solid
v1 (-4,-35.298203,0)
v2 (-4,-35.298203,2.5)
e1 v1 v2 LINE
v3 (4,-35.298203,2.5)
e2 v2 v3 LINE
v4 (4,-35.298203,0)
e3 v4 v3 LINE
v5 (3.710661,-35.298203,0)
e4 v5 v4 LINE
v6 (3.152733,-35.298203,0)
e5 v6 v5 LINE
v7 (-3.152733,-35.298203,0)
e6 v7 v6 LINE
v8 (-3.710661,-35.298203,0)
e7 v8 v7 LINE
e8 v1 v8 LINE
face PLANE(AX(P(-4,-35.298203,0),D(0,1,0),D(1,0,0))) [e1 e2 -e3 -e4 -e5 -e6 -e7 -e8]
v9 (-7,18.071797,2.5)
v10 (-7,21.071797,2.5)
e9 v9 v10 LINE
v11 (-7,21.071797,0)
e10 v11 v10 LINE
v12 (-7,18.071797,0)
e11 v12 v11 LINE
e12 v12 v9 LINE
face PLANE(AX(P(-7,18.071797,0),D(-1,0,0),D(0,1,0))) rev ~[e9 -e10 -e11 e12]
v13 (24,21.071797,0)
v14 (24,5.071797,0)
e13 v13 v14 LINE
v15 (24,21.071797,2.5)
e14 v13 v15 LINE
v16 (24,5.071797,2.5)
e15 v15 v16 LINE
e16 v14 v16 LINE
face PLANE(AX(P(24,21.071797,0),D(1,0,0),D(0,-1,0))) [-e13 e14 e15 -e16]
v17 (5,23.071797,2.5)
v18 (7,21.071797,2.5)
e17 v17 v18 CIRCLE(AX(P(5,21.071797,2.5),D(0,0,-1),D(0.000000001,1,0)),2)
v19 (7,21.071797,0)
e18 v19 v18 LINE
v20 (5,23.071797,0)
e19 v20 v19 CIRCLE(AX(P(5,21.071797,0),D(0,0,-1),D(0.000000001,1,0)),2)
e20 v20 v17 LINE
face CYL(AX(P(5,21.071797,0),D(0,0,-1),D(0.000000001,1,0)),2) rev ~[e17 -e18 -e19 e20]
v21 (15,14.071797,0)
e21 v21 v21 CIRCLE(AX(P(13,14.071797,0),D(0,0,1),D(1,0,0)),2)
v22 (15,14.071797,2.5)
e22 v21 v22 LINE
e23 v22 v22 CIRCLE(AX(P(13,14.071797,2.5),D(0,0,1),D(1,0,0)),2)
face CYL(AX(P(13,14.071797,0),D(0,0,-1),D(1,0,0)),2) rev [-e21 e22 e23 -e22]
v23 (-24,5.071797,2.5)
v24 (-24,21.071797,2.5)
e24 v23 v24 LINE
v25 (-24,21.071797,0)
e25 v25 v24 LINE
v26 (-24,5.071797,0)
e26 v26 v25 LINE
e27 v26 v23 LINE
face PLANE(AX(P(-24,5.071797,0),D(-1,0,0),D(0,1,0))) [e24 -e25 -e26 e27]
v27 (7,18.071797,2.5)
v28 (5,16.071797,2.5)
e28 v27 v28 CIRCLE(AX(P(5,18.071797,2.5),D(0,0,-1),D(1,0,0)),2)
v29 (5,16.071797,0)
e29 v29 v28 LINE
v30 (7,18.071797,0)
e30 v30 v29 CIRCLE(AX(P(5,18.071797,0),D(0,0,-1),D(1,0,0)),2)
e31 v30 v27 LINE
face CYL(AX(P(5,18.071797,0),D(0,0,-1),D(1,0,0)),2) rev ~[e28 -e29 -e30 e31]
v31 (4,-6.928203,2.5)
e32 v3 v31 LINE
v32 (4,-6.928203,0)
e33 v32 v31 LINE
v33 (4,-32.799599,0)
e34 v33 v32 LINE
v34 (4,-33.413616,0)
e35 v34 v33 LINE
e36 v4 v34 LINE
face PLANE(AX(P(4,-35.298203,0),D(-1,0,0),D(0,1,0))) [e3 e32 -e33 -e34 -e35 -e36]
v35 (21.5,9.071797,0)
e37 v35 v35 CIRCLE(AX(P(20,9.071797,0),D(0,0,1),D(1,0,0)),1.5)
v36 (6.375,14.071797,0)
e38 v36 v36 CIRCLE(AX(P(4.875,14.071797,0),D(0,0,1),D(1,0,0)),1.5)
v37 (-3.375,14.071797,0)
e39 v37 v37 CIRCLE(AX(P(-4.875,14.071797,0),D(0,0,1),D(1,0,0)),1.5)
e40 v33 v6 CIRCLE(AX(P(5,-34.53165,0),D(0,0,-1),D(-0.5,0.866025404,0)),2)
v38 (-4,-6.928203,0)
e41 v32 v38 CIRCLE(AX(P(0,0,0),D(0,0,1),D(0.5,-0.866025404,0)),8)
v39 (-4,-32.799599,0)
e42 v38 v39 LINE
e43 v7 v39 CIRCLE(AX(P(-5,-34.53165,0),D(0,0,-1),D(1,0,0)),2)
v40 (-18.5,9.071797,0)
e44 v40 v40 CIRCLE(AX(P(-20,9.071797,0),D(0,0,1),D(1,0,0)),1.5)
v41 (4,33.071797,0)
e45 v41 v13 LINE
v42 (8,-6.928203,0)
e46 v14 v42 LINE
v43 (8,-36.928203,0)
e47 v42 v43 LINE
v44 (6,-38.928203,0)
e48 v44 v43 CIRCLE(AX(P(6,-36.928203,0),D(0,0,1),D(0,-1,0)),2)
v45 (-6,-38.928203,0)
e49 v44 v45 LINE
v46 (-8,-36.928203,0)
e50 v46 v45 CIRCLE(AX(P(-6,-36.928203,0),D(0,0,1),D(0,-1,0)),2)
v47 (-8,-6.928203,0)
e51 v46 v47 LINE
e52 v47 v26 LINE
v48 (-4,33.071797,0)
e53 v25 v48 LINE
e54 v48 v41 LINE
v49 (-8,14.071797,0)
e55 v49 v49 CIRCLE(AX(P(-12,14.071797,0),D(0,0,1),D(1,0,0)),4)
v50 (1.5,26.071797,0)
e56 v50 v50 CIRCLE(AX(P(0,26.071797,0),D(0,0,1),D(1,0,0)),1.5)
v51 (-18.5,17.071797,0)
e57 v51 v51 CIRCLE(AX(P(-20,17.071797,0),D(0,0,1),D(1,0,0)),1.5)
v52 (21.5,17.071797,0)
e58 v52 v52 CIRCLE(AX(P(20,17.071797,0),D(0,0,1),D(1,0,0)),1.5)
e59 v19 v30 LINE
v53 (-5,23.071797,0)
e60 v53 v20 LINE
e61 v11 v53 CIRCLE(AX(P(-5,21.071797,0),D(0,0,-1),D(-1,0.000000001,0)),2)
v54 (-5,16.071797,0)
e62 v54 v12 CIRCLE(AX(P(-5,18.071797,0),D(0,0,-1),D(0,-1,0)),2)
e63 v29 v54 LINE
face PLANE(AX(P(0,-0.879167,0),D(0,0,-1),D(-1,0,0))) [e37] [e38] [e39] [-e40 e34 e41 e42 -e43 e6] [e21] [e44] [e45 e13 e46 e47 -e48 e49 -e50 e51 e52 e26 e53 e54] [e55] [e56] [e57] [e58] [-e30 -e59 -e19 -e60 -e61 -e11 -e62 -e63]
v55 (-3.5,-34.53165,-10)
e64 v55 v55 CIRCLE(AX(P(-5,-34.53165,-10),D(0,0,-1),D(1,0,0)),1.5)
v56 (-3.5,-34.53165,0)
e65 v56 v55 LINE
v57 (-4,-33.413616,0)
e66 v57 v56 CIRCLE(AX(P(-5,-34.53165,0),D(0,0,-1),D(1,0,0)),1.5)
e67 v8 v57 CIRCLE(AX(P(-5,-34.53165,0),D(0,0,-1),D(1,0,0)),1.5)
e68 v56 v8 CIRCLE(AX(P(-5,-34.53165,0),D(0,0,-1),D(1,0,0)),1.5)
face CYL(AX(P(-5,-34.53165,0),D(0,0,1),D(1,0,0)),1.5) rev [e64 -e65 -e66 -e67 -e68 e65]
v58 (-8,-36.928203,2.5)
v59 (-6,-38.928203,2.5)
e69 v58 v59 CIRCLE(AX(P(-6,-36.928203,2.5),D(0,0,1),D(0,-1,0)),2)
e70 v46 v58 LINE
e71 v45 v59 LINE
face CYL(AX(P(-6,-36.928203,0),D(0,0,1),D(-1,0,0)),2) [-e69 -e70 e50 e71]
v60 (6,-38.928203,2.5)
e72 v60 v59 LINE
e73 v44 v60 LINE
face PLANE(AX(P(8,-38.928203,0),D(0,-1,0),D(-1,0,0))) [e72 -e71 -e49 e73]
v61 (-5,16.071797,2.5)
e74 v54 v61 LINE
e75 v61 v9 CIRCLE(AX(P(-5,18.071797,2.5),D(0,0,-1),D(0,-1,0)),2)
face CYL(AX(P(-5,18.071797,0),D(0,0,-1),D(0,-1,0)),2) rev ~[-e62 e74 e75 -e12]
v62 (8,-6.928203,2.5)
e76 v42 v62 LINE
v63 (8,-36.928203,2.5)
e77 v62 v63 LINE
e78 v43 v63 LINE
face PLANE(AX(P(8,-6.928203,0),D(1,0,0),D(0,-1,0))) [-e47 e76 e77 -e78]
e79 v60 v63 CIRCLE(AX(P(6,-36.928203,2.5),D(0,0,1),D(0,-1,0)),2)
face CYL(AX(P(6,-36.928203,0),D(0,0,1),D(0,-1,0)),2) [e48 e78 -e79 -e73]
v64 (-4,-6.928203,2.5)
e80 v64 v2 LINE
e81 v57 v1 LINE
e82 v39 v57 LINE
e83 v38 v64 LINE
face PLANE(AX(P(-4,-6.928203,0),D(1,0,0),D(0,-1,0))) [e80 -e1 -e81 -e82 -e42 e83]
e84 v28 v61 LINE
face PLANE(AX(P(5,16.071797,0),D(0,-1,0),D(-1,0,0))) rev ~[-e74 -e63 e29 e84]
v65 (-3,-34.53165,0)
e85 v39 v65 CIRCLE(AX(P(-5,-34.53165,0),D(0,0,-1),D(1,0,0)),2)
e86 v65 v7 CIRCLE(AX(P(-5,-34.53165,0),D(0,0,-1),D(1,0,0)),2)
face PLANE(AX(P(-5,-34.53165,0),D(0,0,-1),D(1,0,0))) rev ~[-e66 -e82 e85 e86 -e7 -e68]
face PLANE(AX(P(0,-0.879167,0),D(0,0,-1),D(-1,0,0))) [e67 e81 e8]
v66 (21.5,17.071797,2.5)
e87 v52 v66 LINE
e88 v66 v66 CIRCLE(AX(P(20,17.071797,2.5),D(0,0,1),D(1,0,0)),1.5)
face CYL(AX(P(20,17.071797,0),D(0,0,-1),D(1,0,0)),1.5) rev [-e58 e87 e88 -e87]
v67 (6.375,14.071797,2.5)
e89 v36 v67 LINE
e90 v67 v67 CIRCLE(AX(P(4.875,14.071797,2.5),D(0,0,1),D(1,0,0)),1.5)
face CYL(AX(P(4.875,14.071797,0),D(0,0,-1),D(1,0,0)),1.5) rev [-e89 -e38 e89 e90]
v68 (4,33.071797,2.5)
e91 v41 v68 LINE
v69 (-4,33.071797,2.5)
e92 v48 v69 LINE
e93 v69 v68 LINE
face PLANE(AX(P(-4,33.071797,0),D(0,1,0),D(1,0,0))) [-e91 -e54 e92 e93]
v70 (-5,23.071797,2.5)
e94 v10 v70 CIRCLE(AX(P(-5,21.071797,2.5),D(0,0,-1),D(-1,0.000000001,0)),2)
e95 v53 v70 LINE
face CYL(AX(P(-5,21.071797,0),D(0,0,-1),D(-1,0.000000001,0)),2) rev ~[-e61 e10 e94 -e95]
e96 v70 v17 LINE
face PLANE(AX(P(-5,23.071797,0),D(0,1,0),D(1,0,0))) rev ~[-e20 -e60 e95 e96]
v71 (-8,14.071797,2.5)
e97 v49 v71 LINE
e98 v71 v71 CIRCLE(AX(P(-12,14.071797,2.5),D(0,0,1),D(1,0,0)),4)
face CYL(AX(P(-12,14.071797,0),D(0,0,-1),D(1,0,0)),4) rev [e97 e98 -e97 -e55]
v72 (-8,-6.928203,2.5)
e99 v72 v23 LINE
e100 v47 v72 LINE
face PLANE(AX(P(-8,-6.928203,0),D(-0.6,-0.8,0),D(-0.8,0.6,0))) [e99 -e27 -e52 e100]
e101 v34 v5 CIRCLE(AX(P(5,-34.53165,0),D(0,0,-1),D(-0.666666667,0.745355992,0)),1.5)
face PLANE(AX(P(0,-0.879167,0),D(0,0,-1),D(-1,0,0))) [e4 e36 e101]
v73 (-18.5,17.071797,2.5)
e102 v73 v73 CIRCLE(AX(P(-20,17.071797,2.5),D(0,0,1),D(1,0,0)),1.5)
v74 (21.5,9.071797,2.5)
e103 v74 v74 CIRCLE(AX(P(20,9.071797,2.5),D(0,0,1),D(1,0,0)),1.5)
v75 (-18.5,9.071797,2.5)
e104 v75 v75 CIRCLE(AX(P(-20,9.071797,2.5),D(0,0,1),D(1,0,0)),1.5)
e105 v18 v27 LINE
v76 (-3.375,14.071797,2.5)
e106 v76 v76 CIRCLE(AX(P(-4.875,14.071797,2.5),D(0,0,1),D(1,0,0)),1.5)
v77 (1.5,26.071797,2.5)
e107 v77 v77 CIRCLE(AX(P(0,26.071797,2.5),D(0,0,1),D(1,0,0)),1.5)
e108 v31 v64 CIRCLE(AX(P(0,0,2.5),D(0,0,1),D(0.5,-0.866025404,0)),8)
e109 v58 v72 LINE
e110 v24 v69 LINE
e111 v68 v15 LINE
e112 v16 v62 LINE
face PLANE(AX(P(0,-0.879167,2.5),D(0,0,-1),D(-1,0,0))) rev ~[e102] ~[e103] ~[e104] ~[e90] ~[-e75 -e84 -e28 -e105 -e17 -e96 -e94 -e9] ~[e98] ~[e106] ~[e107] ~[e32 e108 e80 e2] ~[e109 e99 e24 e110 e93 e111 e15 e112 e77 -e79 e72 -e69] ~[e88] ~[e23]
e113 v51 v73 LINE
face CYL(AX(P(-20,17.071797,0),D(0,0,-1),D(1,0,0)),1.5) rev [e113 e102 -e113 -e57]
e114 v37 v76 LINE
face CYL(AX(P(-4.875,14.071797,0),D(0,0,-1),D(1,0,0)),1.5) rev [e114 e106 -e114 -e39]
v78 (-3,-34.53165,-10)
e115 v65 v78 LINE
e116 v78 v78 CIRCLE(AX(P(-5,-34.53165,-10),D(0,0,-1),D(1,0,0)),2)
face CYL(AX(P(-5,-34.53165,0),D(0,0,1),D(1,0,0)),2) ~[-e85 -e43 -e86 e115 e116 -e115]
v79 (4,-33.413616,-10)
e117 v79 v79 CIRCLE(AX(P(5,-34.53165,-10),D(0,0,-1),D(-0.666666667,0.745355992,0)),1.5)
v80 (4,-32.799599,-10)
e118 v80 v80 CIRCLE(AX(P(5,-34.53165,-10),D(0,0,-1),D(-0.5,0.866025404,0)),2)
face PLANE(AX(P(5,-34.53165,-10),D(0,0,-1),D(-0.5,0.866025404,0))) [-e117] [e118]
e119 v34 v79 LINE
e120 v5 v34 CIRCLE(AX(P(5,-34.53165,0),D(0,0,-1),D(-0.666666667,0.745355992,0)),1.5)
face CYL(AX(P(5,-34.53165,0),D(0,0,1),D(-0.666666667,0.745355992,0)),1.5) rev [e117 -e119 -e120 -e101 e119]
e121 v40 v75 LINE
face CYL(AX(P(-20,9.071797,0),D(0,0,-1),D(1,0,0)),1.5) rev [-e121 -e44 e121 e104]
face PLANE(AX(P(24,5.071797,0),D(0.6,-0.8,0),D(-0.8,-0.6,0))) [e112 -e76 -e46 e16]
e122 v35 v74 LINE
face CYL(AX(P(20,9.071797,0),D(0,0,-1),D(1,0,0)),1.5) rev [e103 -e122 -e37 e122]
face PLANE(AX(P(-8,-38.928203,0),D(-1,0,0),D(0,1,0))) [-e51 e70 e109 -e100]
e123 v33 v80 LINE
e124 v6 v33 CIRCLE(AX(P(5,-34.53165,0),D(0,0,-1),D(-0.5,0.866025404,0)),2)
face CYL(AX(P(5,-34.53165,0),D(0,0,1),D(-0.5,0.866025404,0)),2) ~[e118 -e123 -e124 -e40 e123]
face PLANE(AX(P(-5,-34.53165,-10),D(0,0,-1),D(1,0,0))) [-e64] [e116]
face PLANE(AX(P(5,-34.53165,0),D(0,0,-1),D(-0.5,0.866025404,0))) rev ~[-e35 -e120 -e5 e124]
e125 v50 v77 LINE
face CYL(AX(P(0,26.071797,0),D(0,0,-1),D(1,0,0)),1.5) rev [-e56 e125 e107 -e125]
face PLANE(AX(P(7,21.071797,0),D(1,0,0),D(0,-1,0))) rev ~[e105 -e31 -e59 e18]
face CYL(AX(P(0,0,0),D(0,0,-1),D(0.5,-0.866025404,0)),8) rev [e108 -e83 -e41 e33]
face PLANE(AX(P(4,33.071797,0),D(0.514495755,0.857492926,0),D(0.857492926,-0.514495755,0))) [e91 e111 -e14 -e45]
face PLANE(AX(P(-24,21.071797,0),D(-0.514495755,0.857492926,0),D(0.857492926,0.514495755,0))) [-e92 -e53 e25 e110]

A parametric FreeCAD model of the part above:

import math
import FreeCAD as App
import Part
import Sketcher

V = App.Vector
Q = App.Units.Quantity


def edges_at(feature, points):
    """Names of the edges that pass closest to the given points."""
    edges = feature.Shape.Edges
    near = lambda p: min(range(len(edges)), key=lambda i: edges[i].distToShape(Part.Vertex(*p))[0])
    return sorted({f"Edge{near(p) + 1}" for p in points})

doc = App.newDocument("Part")
body = doc.addObject("PartDesign::Body", "Body")

sketch1 = body.newObject("Sketcher::SketchObject", "Sketch")
sketch1.AttachmentSupport = (doc.getObject("XY_Plane"), [""])
sketch1.MapMode = "FlatFace"
sketch1.addGeometry([
    Part.LineSegment(V(-24, 21.071797, 0), V(-24, 5.071797, 0)),
    Part.LineSegment(V(-24, 5.071797, 0), V(-8, -6.928203, 0)),
    Part.LineSegment(V(-8, -6.928203, 0), V(-8, -38.928203, 0)),
    Part.LineSegment(V(-8, -38.928203, 0), V(8, -38.928203, 0)),
    Part.LineSegment(V(8, -38.928203, 0), V(8, -6.928203, 0)),
    Part.LineSegment(V(8, -6.928203, 0), V(24, 5.071797, 0)),
    Part.LineSegment(V(24, 5.071797, 0), V(24, 21.071797, 0)),
    Part.LineSegment(V(24, 21.071797, 0), V(4, 33.071797, 0)),
    Part.LineSegment(V(4, 33.071797, 0), V(-4, 33.071797, 0)),
    Part.LineSegment(V(-4, 33.071797, 0), V(-24, 21.071797, 0)),
    Part.LineSegment(V(-4, -35.298203, 0), V(-4, -6.928203, 0)),
    Part.ArcOfCircle(Part.Circle(V(0, 0, 0), V(0, 0, 1), 8), math.radians(-60), math.radians(240)),
    Part.LineSegment(V(4, -6.928203, 0), V(4, -35.298203, 0)),
    Part.LineSegment(V(4, -35.298203, 0), V(-4, -35.298203, 0)),
    Part.Circle(V(20, 9.071797, 0), V(0, 0, 1), 1.5),
    Part.Circle(V(20, 17.071797, 0), V(0, 0, 1), 1.5),
    Part.Circle(V(13, 14.071797, 0), V(0, 0, 1), 2),
    Part.Circle(V(4.875, 14.071797, 0), V(0, 0, 1), 1.5),
    Part.Circle(V(-20, 9.071797, 0), V(0, 0, 1), 1.5),
    Part.Circle(V(-4.875, 14.071797, 0), V(0, 0, 1), 1.5),
    Part.LineSegment(V(-5, 23.071797, 0), V(5, 23.071797, 0)),
    Part.ArcOfCircle(Part.Circle(V(5, 21.071797, 0), V(0, 0, 1), 2), math.radians(0), math.radians(90)),
    Part.LineSegment(V(7, 21.071797, 0), V(7, 18.071797, 0)),
    Part.ArcOfCircle(Part.Circle(V(5, 18.071797, 0), V(0, 0, 1), 2), math.radians(-90), math.radians(0)),
    Part.LineSegment(V(5, 16.071797, 0), V(-5, 16.071797, 0)),
    Part.ArcOfCircle(Part.Circle(V(-5, 18.071797, 0), V(0, 0, 1), 2), math.radians(180), math.radians(270)),
    Part.LineSegment(V(-7, 18.071797, 0), V(-7, 21.071797, 0)),
    Part.ArcOfCircle(Part.Circle(V(-5, 21.071797, 0), V(0, 0, 1), 2), math.radians(90), math.radians(180)),
    Part.Circle(V(0, 26.071797, 0), V(0, 0, 1), 1.5),
    Part.Circle(V(-12, 14.071797, 0), V(0, 0, 1), 4),
    Part.Circle(V(-20, 17.071797, 0), V(0, 0, 1), 1.5),
], False)
sketch1.addConstraint([
    Sketcher.Constraint("Coincident", 0, 2, 1, 1),
    Sketcher.Constraint("Coincident", 1, 2, 2, 1),
    Sketcher.Constraint("Coincident", 2, 2, 3, 1),
    Sketcher.Constraint("Coincident", 3, 2, 4, 1),
    Sketcher.Constraint("Coincident", 4, 2, 5, 1),
    Sketcher.Constraint("Coincident", 5, 2, 6, 1),
    Sketcher.Constraint("Coincident", 6, 2, 7, 1),
    Sketcher.Constraint("Coincident", 7, 2, 8, 1),
    Sketcher.Constraint("Coincident", 8, 2, 9, 1),
    Sketcher.Constraint("Coincident", 9, 2, 0, 1),
    Sketcher.Constraint("Coincident", 10, 2, 11, 2),
    Sketcher.Constraint("Coincident", 11, 1, 12, 1),
    Sketcher.Constraint("Coincident", 12, 2, 13, 1),
    Sketcher.Constraint("Coincident", 13, 2, 10, 1),
    Sketcher.Constraint("Tangent", 20, 2, 21, 2),
    Sketcher.Constraint("Tangent", 21, 1, 22, 1),
    Sketcher.Constraint("Tangent", 22, 2, 23, 2),
    Sketcher.Constraint("Tangent", 23, 1, 24, 1),
    Sketcher.Constraint("Tangent", 24, 2, 25, 2),
    Sketcher.Constraint("Tangent", 25, 1, 26, 1),
    Sketcher.Constraint("Tangent", 26, 2, 27, 2),
    Sketcher.Constraint("Tangent", 27, 1, 20, 1),
    Sketcher.Constraint("Vertical", 0),
    Sketcher.Constraint("Vertical", 2),
    Sketcher.Constraint("Horizontal", 3),
    Sketcher.Constraint("Vertical", 4),
    Sketcher.Constraint("Vertical", 6),
    Sketcher.Constraint("Horizontal", 8),
    Sketcher.Constraint("Vertical", 10),
    Sketcher.Constraint("Vertical", 12),
    Sketcher.Constraint("Horizontal", 13),
    Sketcher.Constraint("Horizontal", 20),
    Sketcher.Constraint("Vertical", 22),
    Sketcher.Constraint("Horizontal", 24),
    Sketcher.Constraint("Vertical", 26),
    Sketcher.Constraint("Coincident", 11, 3, -1, 1),
    Sketcher.Constraint("Equal", 14, 15),
    Sketcher.Constraint("Equal", 15, 17),
    Sketcher.Constraint("Equal", 17, 18),
    Sketcher.Constraint("Equal", 18, 19),
    Sketcher.Constraint("Equal", 16, 21),
    Sketcher.Constraint("Equal", 21, 23),
    Sketcher.Constraint("Equal", 23, 25),
    Sketcher.Constraint("Equal", 25, 27),
    Sketcher.Constraint("Equal", 19, 28),
    Sketcher.Constraint("Equal", 28, 30),
    Sketcher.Constraint("Symmetric", 14, 3, 18, 3, -2),
    Sketcher.Constraint("Symmetric", 17, 3, 19, 3, -2),
    Sketcher.Constraint("Symmetric", 15, 3, 30, 3, -2),
    Sketcher.Constraint("Symmetric", 1, 2, 4, 2, -2),
    Sketcher.Constraint("Symmetric", 0, 2, 5, 2, -2),
    Sketcher.Constraint("PointOnObject", 28, 3, -2),
    Sketcher.Constraint("Horizontal", 16, 3, 17, 3),
    Sketcher.Constraint("Horizontal", 19, 3, 29, 3),
    Sketcher.Constraint("Horizontal", 27, 3, 6, 2),
    Sketcher.Constraint("Horizontal", 6, 2, 9, 2),
    Sketcher.Constraint("Horizontal", 4, 2, 10, 2),
    Sketcher.Constraint("Horizontal", 10, 2, 11, 1),
    Sketcher.Constraint("Vertical", 14, 3, 15, 3),
    Sketcher.Constraint("Vertical", 8, 2, 10, 2),
    Sketcher.Constraint("Vertical", 7, 2, 11, 1),
    Sketcher.Constraint("Equal", 3, 0),
    Sketcher.Constraint("Diameter", 14, Q("3 mm")),
    Sketcher.Constraint("Diameter", 16, Q("4 mm")),
    Sketcher.Constraint("Diameter", 29, Q("8 mm")),
    Sketcher.Constraint("Radius", 11, Q("8 mm")),
    Sketcher.Constraint("DistanceX", 3, 1, 3, 2, Q("16 mm")),
    Sketcher.Constraint("DistanceX", 8, 2, 8, 1, Q("8 mm")),
    Sketcher.Constraint("DistanceX", 20, 1, 20, 2, Q("10 mm")),
    Sketcher.Constraint("DistanceY", 2, 2, 2, 1, Q("32 mm")),
    Sketcher.Constraint("DistanceY", 22, 2, 22, 1, Q("3 mm")),
    Sketcher.Constraint("Distance", 1, Q("20 mm")),
    Sketcher.Constraint("DistanceX", -1, 1, 14, 3, Q("20 mm")),
    Sketcher.Constraint("DistanceX", -1, 1, 16, 3, Q("13 mm")),
    Sketcher.Constraint("DistanceX", -1, 1, 21, 3, Q("5 mm")),
    Sketcher.Constraint("DistanceX", 29, 3, -1, 1, Q("12 mm")),
    Sketcher.Constraint("DistanceX", 0, 2, -1, 1, Q("24 mm")),
    Sketcher.Constraint("DistanceY", 14, 3, 15, 3, Q("8 mm")),
    Sketcher.Constraint("DistanceY", 16, 3, 15, 3, Q("3 mm")),
    Sketcher.Constraint("DistanceY", 17, 3, 21, 3, Q("7 mm")),
    Sketcher.Constraint("DistanceY", 21, 3, 28, 3, Q("5 mm")),
    Sketcher.Constraint("DistanceY", 28, 3, 7, 2, Q("7 mm")),
    Sketcher.Constraint("DistanceY", 10, 1, 10, 2, Q("28.37 mm")),
    Sketcher.Constraint("DistanceX", 19, 3, 17, 3, Q("9.75 mm")),
])
pad1 = body.newObject("PartDesign::Pad", "Pad")
pad1.Profile = sketch1
pad1.Length = 2.5

sketch2 = body.newObject("Sketcher::SketchObject", "Sketch001")
sketch2.AttachmentSupport = (doc.getObject("XY_Plane"), [""])
sketch2.MapMode = "FlatFace"
sketch2.addGeometry([
    Part.Circle(V(5, -34.53165, 0), V(0, 0, 1), 2),
    Part.Circle(V(5, -34.53165, 0), V(0, 0, 1), 1.5),
    Part.Circle(V(-5, -34.53165, 0), V(0, 0, 1), 2),
    Part.Circle(V(-5, -34.53165, 0), V(0, 0, 1), 1.5),
], False)
sketch2.addConstraint([
    Sketcher.Constraint("Coincident", 1, 3, 0, 3),
    Sketcher.Constraint("Coincident", 3, 3, 2, 3),
    Sketcher.Constraint("Equal", 0, 2),
    Sketcher.Constraint("Equal", 1, 3),
    Sketcher.Constraint("Symmetric", 0, 3, 2, 3, -2),
    Sketcher.Constraint("Diameter", 0, Q("4 mm")),
    Sketcher.Constraint("Diameter", 1, Q("3 mm")),
    Sketcher.Constraint("DistanceX", -1, 1, 0, 3, Q("5 mm")),
    Sketcher.Constraint("DistanceY", 0, 3, -1, 1, Q("34.53165 mm")),
])
pad2 = body.newObject("PartDesign::Pad", "Pad001")
pad2.Profile = sketch2
pad2.Length = 10
pad2.Reversed = True
doc.recompute()

fillet = body.newObject("PartDesign::Fillet", "Fillet")
fillet.Base = (pad2, edges_at(pad2, [(8, -38.928, 1.25), (-8, -38.928, 1.25)]))
fillet.Radius = 2

doc.recompute()
